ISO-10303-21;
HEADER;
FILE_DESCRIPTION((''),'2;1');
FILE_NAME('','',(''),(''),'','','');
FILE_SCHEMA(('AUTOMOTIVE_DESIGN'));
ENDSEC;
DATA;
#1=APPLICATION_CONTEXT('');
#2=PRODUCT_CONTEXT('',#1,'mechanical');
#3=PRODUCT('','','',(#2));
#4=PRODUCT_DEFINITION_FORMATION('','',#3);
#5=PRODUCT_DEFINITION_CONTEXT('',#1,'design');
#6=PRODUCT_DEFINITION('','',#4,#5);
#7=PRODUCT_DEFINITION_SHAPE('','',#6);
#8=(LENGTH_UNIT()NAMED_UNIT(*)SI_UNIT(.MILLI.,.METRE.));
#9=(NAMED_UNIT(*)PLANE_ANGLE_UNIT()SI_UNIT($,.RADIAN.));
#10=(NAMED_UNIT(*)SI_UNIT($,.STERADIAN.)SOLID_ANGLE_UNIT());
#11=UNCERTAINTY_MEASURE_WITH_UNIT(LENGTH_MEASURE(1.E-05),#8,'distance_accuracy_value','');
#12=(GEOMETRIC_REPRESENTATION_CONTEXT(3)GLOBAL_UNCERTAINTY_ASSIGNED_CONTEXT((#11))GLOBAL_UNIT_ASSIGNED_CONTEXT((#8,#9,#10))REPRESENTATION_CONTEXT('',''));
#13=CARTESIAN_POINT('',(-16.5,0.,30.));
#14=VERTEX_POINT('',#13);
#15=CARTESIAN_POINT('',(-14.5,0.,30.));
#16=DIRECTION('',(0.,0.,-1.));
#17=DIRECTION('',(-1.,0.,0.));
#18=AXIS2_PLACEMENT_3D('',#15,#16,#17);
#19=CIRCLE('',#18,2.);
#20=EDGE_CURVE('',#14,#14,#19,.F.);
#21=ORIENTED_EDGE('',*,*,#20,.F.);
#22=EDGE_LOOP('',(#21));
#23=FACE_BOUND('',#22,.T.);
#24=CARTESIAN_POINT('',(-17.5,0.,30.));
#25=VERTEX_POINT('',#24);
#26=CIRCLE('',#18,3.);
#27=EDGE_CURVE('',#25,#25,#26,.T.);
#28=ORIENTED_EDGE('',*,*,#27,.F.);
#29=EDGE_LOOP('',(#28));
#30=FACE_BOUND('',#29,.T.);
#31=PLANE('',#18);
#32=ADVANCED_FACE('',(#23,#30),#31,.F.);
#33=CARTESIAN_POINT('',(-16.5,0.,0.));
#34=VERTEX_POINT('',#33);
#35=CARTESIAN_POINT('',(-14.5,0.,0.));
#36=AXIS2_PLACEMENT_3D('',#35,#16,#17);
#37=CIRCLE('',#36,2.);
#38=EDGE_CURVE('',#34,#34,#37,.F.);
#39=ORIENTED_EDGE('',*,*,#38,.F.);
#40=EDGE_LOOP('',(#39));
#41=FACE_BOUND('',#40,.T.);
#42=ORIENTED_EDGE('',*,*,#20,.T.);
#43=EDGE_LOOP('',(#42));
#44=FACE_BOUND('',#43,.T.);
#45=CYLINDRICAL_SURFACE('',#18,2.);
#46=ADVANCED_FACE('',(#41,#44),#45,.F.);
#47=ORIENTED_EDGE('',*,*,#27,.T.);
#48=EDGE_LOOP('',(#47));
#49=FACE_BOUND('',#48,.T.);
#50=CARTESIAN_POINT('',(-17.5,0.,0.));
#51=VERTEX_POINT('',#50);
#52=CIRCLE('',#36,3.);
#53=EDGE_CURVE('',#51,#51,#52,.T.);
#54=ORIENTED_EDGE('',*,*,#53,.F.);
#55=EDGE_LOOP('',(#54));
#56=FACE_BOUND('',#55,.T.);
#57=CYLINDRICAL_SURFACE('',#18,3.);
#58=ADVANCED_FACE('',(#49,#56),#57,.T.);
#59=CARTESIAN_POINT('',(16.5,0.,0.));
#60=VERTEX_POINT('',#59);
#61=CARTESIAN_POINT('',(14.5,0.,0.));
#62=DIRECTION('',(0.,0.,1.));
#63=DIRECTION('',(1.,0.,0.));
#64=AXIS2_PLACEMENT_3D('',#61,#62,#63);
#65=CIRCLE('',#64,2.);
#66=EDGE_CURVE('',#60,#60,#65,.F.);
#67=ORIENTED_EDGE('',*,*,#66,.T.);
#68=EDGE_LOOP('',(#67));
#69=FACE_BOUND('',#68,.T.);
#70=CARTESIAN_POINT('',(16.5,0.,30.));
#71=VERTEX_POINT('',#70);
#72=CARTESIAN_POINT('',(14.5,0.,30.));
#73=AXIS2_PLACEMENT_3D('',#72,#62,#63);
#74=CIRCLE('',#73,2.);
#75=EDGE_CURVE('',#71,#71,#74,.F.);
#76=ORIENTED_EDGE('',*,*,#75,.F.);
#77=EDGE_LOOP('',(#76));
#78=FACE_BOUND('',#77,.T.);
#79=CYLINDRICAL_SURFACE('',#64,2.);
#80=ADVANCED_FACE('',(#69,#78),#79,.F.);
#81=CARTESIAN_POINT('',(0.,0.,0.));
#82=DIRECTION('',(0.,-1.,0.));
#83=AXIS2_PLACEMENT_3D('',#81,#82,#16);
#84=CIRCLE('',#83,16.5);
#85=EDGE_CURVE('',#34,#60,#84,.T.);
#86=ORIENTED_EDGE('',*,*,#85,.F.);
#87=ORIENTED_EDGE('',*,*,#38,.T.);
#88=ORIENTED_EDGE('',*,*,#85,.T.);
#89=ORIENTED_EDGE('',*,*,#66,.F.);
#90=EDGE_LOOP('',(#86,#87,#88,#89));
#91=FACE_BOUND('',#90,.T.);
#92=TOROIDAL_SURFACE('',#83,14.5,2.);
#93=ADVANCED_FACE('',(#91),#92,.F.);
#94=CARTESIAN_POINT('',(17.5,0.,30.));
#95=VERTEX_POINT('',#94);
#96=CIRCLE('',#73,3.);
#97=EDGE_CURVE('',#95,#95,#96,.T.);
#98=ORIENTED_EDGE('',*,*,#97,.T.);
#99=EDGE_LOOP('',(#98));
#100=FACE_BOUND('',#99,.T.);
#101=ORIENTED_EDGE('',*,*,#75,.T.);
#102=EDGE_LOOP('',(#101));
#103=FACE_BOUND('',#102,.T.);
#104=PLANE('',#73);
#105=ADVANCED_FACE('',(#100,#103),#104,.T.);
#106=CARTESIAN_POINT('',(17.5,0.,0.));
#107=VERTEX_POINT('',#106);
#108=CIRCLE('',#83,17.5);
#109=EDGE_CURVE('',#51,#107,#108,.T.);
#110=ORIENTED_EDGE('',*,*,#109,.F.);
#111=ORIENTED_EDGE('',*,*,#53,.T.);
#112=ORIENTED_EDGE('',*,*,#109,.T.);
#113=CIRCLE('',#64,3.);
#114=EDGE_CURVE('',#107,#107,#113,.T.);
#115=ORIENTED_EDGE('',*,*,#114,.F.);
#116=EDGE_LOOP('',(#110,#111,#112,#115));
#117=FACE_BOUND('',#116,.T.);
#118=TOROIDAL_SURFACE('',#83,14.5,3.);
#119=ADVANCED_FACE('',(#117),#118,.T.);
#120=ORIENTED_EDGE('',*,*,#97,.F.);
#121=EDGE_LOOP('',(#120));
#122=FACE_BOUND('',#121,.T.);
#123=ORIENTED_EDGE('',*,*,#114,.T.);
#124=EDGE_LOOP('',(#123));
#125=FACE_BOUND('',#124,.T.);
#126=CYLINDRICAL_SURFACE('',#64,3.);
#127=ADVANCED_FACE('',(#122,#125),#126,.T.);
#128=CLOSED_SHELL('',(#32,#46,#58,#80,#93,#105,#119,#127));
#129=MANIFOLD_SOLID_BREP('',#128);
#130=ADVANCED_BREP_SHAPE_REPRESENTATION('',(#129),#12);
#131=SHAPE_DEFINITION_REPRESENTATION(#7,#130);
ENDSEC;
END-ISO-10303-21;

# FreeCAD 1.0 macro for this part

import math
import FreeCAD as App
import Part
import Sketcher
from FreeCAD import Vector
Q = App.Units.Quantity

doc = App.newDocument("Part")
body = doc.addObject("PartDesign::Body", "Body")

# Sketch on XY plane
sketch1 = body.newObject("Sketcher::SketchObject", "Sketch")
sketch1.AttachmentSupport = (doc.getObject("XY_Plane"), [""])
sketch1.MapMode = "FlatFace"
sketch1.AttachmentOffset = App.Placement(Vector(0, 0, 30), App.Rotation())
sketch1.addGeometry([
    Part.Circle(Vector(-14.5, 0, 0), Vector(0, 0, 1), 3),
    Part.Circle(Vector(-14.5, 0, 0), Vector(0, 0, 1), 2),
], False)
sketch1.addConstraint([
    Sketcher.Constraint("Coincident", 1, 3, 0, 3),
    Sketcher.Constraint("PointOnObject", 0, 3, -1),
    Sketcher.Constraint("Diameter", 0, Q("6 mm")),
    Sketcher.Constraint("Diameter", 1, Q("4 mm")),
    Sketcher.Constraint("DistanceX", 0, 3, -1, 1, Q("14.5 mm")),
])

# Sketch on XZ plane
sketch2 = body.newObject("Sketcher::SketchObject", "Sketch001")
sketch2.AttachmentSupport = (doc.getObject("XZ_Plane"), [""])
sketch2.MapMode = "FlatFace"
sketch2.addGeometry([
    Part.LineSegment(Vector(-14.5, 30, 0), Vector(-14.5, 0, 0)),
    Part.ArcOfCircle(Part.Circle(Vector(0, 0, 0), Vector(0, 0, 1), 14.5), math.radians(180), math.radians(360)),
    Part.LineSegment(Vector(14.5, 0, 0), Vector(14.5, 30, 0)),
], False)
sketch2.addConstraint([
    Sketcher.Constraint("Tangent", 0, 2, 1, 1),
    Sketcher.Constraint("Tangent", 1, 2, 2, 1),
    Sketcher.Constraint("Vertical", 0),
    Sketcher.Constraint("Vertical", 2),
    Sketcher.Constraint("Coincident", 1, 3, -1, 1),
    Sketcher.Constraint("Horizontal", 0, 1, 2, 2),
    Sketcher.Constraint("Radius", 1, Q("14.5 mm")),
    Sketcher.Constraint("DistanceY", 0, 2, 0, 1, Q("30 mm")),
])
doc.recompute()

additivepipe = body.newObject("PartDesign::AdditivePipe", "AdditivePipe")
additivepipe.Profile = sketch1
additivepipe.Spine = (sketch2, ["Edge1", "Edge2", "Edge3"])

doc.recompute()
